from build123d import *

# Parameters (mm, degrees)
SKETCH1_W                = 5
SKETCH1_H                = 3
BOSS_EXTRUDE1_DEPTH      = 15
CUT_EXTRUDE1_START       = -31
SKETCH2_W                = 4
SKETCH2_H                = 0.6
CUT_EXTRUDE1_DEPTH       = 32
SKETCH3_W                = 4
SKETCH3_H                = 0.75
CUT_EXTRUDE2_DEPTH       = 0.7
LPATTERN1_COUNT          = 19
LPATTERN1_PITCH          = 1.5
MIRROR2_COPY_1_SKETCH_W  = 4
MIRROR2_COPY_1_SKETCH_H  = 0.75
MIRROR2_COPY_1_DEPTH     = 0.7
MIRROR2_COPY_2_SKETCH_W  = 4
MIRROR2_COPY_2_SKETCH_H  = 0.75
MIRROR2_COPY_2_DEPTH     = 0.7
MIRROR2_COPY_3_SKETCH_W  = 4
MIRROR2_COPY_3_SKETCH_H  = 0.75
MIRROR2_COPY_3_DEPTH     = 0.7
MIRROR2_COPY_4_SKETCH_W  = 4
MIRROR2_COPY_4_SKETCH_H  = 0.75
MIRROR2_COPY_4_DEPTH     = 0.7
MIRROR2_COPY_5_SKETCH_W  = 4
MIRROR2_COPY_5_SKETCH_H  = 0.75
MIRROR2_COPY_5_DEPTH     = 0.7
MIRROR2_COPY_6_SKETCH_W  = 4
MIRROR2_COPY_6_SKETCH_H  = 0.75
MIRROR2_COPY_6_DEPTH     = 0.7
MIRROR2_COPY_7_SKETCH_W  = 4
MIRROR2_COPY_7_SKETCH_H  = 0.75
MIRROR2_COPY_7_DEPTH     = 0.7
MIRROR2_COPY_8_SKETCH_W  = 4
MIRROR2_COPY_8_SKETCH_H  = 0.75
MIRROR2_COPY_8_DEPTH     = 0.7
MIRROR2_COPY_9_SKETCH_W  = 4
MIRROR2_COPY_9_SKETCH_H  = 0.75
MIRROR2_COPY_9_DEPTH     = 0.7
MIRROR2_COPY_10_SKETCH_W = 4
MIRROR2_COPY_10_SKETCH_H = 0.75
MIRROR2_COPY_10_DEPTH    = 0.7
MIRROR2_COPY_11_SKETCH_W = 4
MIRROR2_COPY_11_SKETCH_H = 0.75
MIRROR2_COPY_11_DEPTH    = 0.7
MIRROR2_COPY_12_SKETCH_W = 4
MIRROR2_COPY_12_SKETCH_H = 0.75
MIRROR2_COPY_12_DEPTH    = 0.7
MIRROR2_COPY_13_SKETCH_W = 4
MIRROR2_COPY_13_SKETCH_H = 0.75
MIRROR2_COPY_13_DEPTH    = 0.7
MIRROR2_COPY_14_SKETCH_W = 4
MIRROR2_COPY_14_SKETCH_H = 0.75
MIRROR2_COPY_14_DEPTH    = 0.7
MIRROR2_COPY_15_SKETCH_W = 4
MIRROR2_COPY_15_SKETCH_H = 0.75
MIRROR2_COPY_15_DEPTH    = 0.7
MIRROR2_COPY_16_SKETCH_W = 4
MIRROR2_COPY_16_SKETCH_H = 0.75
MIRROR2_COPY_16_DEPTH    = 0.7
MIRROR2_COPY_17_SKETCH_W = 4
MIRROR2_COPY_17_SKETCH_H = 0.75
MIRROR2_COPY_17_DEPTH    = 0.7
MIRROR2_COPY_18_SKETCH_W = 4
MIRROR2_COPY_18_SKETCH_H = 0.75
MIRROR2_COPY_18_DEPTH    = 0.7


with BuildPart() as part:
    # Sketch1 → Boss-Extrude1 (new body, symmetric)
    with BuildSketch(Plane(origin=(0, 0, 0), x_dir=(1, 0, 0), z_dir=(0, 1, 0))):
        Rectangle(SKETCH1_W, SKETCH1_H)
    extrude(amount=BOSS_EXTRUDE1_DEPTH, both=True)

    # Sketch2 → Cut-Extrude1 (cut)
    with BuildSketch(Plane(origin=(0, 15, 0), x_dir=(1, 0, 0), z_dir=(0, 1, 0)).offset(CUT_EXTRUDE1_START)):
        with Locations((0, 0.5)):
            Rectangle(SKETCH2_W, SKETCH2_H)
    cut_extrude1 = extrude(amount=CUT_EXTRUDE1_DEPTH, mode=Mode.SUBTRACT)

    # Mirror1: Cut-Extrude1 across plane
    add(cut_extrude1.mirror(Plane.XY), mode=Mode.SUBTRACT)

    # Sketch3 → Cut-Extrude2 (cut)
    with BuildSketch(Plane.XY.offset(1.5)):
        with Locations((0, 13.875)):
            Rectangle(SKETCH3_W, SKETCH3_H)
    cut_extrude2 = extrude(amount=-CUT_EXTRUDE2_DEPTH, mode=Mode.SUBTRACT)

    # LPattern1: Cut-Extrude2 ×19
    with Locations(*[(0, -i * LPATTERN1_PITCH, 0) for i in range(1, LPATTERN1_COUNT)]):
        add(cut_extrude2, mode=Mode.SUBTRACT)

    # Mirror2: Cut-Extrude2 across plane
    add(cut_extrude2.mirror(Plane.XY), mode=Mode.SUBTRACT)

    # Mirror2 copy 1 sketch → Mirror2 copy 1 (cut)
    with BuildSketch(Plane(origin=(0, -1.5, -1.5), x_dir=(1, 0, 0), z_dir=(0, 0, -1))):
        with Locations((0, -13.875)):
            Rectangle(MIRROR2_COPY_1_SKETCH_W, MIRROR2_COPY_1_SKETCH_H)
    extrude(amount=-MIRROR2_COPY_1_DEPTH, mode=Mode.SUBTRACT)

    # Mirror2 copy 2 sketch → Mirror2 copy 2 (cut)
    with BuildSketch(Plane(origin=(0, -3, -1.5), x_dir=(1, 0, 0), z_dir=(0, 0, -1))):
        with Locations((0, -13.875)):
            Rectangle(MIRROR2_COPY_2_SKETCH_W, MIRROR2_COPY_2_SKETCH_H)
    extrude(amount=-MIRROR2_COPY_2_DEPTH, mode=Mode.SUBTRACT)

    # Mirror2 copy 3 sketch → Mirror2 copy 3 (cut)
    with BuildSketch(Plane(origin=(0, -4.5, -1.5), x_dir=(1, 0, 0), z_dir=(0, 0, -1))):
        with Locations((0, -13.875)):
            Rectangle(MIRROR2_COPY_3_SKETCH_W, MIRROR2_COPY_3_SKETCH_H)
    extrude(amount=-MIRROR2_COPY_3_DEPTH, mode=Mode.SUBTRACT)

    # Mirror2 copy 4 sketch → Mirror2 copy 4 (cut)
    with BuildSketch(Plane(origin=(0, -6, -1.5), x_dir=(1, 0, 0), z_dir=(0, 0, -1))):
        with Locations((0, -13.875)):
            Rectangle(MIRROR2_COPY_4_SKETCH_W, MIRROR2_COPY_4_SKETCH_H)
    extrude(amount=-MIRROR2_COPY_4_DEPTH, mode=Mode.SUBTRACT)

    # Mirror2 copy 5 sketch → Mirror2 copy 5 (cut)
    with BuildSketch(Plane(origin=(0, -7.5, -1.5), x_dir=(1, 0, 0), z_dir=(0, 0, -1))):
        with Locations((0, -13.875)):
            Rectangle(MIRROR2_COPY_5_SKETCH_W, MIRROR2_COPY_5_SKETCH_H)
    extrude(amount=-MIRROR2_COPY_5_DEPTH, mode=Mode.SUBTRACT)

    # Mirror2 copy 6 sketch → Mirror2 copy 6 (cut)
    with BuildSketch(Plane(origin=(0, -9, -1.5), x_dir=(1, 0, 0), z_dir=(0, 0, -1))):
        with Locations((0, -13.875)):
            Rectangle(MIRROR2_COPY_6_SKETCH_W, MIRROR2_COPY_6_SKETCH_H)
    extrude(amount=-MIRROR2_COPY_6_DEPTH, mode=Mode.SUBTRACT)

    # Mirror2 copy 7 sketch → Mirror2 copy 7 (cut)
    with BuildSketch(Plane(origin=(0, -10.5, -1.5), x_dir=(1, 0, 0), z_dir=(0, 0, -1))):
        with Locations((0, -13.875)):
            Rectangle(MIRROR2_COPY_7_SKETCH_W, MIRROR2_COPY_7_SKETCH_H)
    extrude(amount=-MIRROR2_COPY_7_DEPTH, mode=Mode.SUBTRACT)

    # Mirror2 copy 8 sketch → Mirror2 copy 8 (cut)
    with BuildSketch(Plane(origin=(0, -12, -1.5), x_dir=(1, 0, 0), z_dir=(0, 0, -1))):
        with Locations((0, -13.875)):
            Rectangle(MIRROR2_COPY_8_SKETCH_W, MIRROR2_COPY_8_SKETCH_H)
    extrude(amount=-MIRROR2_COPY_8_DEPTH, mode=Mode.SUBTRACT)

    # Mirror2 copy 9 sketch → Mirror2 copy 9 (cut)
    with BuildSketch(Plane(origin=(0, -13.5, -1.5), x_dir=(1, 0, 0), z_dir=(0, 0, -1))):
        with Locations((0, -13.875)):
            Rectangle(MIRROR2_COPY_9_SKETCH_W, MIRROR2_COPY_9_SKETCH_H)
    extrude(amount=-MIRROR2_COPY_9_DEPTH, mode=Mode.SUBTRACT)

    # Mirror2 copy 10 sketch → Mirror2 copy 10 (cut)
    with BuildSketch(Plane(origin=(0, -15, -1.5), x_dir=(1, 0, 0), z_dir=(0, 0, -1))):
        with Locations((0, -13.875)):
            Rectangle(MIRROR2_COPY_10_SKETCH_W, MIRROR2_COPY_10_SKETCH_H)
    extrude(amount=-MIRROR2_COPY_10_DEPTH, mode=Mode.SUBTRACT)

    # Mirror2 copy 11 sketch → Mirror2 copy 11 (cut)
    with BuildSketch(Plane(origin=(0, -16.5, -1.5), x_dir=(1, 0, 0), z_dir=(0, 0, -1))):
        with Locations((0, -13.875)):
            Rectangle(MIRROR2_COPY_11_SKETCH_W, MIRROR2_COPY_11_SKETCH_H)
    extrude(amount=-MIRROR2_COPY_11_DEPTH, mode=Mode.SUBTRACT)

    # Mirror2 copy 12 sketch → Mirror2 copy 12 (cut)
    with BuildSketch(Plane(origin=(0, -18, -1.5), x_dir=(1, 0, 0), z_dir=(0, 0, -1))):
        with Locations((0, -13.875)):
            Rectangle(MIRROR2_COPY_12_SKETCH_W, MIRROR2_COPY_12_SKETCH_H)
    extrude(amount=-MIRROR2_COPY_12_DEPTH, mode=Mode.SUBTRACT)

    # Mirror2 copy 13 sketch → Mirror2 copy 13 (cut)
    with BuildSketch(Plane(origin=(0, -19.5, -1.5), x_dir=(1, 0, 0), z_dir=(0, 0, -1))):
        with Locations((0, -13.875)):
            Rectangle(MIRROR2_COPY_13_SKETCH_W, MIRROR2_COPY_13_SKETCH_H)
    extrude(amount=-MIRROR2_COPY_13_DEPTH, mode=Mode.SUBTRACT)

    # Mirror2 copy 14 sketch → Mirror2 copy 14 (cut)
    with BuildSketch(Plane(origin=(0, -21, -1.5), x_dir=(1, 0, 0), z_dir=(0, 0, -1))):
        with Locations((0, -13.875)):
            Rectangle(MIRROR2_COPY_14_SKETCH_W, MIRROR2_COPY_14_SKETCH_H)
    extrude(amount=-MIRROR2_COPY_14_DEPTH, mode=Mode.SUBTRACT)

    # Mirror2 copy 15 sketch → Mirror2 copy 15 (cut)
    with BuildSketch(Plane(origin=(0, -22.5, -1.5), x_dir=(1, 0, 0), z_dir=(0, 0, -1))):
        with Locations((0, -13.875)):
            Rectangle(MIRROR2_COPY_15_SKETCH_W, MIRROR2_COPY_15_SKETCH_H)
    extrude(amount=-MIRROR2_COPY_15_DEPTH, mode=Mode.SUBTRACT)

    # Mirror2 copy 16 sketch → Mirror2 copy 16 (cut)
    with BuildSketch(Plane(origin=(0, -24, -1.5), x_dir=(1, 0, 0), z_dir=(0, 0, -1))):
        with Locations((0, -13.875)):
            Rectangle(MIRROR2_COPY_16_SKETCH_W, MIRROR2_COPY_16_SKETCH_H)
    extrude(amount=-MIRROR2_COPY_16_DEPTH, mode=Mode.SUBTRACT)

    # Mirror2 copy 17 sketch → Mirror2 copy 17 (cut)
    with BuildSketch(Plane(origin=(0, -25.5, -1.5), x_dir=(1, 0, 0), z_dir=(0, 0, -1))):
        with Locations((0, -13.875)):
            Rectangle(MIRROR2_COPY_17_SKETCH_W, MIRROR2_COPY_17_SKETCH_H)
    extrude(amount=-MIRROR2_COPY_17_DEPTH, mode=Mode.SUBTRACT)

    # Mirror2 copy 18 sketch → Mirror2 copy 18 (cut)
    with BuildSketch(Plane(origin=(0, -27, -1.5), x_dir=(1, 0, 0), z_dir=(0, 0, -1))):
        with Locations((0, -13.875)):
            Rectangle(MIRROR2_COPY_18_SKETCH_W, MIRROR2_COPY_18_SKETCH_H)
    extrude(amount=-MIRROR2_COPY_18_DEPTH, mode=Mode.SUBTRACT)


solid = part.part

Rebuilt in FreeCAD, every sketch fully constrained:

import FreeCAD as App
import Part
import Sketcher

doc = App.newDocument("Part")
body = doc.addObject("PartDesign::Body", "Body")

sketch1 = body.newObject("Sketcher::SketchObject", "Sketch")
sketch1.AttachmentSupport = (doc.getObject("XZ_Plane"), [""])
sketch1.MapMode = "FlatFace"
sketch1.addGeometry([
    Part.LineSegment(App.Vector(-2.5, -1.5, 0), App.Vector(-2.5, 1.5, 0)),
    Part.LineSegment(App.Vector(-2.5, 1.5, 0), App.Vector(2.5, 1.5, 0)),
    Part.LineSegment(App.Vector(2.5, 1.5, 0), App.Vector(2.5, -1.5, 0)),
    Part.LineSegment(App.Vector(2.5, -1.5, 0), App.Vector(-2.5, -1.5, 0)),
], False)
sketch1.addConstraint([
    Sketcher.Constraint("Coincident", 0, 2, 1, 1),
    Sketcher.Constraint("Coincident", 1, 2, 2, 1),
    Sketcher.Constraint("Coincident", 2, 2, 3, 1),
    Sketcher.Constraint("Coincident", 3, 2, 0, 1),
    Sketcher.Constraint("Vertical", 0),
    Sketcher.Constraint("Horizontal", 1),
    Sketcher.Constraint("Vertical", 2),
    Sketcher.Constraint("Horizontal", 3),
    Sketcher.Constraint("Symmetric", 0, 2, 2, 2, -1, 1),
    Sketcher.Constraint("DistanceX", 1, 1, 1, 2, 5.0),
    Sketcher.Constraint("DistanceY", 0, 1, 0, 2, 3.0),
])
pad1 = body.newObject("PartDesign::Pad", "Pad")
pad1.Profile = sketch1
pad1.Length = 30
pad1.Midplane = True

sketch2 = body.newObject("Sketcher::SketchObject", "Sketch001")
sketch2.AttachmentSupport = (doc.getObject("XZ_Plane"), [""])
sketch2.MapMode = "FlatFace"
sketch2.AttachmentOffset = App.Placement(App.Vector(0, 0, 16), App.Rotation())
sketch2.addGeometry([
    Part.LineSegment(App.Vector(-2, -0.8, 0), App.Vector(-2, -0.2, 0)),
    Part.LineSegment(App.Vector(-2, -0.2, 0), App.Vector(2, -0.2, 0)),
    Part.LineSegment(App.Vector(2, -0.2, 0), App.Vector(2, -0.8, 0)),
    Part.LineSegment(App.Vector(2, -0.8, 0), App.Vector(-2, -0.8, 0)),
], False)
sketch2.addConstraint([
    Sketcher.Constraint("Coincident", 0, 2, 1, 1),
    Sketcher.Constraint("Coincident", 1, 2, 2, 1),
    Sketcher.Constraint("Coincident", 2, 2, 3, 1),
    Sketcher.Constraint("Coincident", 3, 2, 0, 1),
    Sketcher.Constraint("Vertical", 0),
    Sketcher.Constraint("Horizontal", 1),
    Sketcher.Constraint("Vertical", 2),
    Sketcher.Constraint("Horizontal", 3),
    Sketcher.Constraint("DistanceX", 1, 1, 1, 2, 4.0),
    Sketcher.Constraint("DistanceY", 0, 1, 0, 2, 0.6),
    Sketcher.Constraint("DistanceX", 0, 2, -1, 1, 2.0),
    Sketcher.Constraint("DistanceY", 0, 2, -1, 1, 0.2),
])
pocket1 = body.newObject("PartDesign::Pocket", "Pocket")
pocket1.Profile = sketch2
pocket1.Length = 32
doc.recompute()

mirrored = body.newObject("PartDesign::Mirrored", "Mirrored")
mirrored.Originals = [pocket1]
mirrored.MirrorPlane = (doc.getObject("XY_Plane"), [""])
body.Tip = mirrored

sketch3 = body.newObject("Sketcher::SketchObject", "Sketch002")
sketch3.AttachmentSupport = (doc.getObject("XY_Plane"), [""])
sketch3.MapMode = "FlatFace"
sketch3.AttachmentOffset = App.Placement(App.Vector(0, 0, 1.5), App.Rotation())
sketch3.addGeometry([
    Part.LineSegment(App.Vector(-2, 14.2, 0), App.Vector(-2, 13.5, 0)),
    Part.LineSegment(App.Vector(-2, 13.5, 0), App.Vector(2, 13.5, 0)),
    Part.LineSegment(App.Vector(2, 13.5, 0), App.Vector(2, 14.2, 0)),
    Part.LineSegment(App.Vector(2, 14.2, 0), App.Vector(-2, 14.2, 0)),
], False)
sketch3.addConstraint([
    Sketcher.Constraint("Coincident", 0, 2, 1, 1),
    Sketcher.Constraint("Coincident", 1, 2, 2, 1),
    Sketcher.Constraint("Coincident", 2, 2, 3, 1),
    Sketcher.Constraint("Coincident", 3, 2, 0, 1),
    Sketcher.Constraint("Vertical", 0),
    Sketcher.Constraint("Horizontal", 1),
    Sketcher.Constraint("Vertical", 2),
    Sketcher.Constraint("Horizontal", 3),
    Sketcher.Constraint("DistanceX", 1, 1, 1, 2, 4.0),
    Sketcher.Constraint("DistanceX", 0, 2, -1, 1, 2.0),
    Sketcher.Constraint("DistanceY", 0, 2, 0, 1, 0.75),
    Sketcher.Constraint("DistanceY", -1, 1, 0, 2, 13.5),
])
pocket2 = body.newObject("PartDesign::Pocket", "Pocket001")
pocket2.Profile = sketch3
pocket2.Length = 0.7
doc.recompute()

linearpattern = body.newObject("PartDesign::LinearPattern", "LinearPattern")
linearpattern.Originals = [pocket2]
linearpattern.Direction = (doc.getObject("Y_Axis"), [""])
linearpattern.Mode = "offset"
linearpattern.Offset = 1.5
linearpattern.Occurrences = 19
linearpattern.Reversed = True
body.Tip = linearpattern
doc.recompute()

mirrored2 = body.newObject("PartDesign::Mirrored", "Mirrored001")
mirrored2.Originals = [pocket2]
mirrored2.MirrorPlane = (doc.getObject("XY_Plane"), [""])
body.Tip = mirrored2

sketch4 = body.newObject("Sketcher::SketchObject", "Sketch003")
sketch4.AttachmentSupport = (doc.getObject("XY_Plane"), [""])
sketch4.MapMode = "FlatFace"
sketch4.AttachmentOffset = App.Placement(App.Vector(0, 0, -1.5), App.Rotation())
sketch4.addGeometry([
    Part.LineSegment(App.Vector(-2, 12, 0), App.Vector(-2, 12.8, 0)),
    Part.LineSegment(App.Vector(-2, 12.8, 0), App.Vector(2, 12.8, 0)),
    Part.LineSegment(App.Vector(2, 12.8, 0), App.Vector(2, 12, 0)),
    Part.LineSegment(App.Vector(2, 12, 0), App.Vector(-2, 12, 0)),
], False)
sketch4.addConstraint([
    Sketcher.Constraint("Coincident", 0, 2, 1, 1),
    Sketcher.Constraint("Coincident", 1, 2, 2, 1),
    Sketcher.Constraint("Coincident", 2, 2, 3, 1),
    Sketcher.Constraint("Coincident", 3, 2, 0, 1),
    Sketcher.Constraint("Vertical", 0),
    Sketcher.Constraint("Horizontal", 1),
    Sketcher.Constraint("Vertical", 2),
    Sketcher.Constraint("Horizontal", 3),
    Sketcher.Constraint("DistanceX", 1, 1, 1, 2, 4.0),
    Sketcher.Constraint("DistanceX", 0, 2, -1, 1, 2.0),
    Sketcher.Constraint("DistanceY", -1, 1, 2, 2, 12.0),
    Sketcher.Constraint("DistanceY", 0, 1, 0, 2, 0.75),
])
pocket3 = body.newObject("PartDesign::Pocket", "Pocket002")
pocket3.Profile = sketch4
pocket3.Length = 0.7
pocket3.Reversed = True

sketch5 = body.newObject("Sketcher::SketchObject", "Sketch004")
sketch5.AttachmentSupport = (doc.getObject("XY_Plane"), [""])
sketch5.MapMode = "FlatFace"
sketch5.AttachmentOffset = App.Placement(App.Vector(0, 0, -1.5), App.Rotation())
sketch5.addGeometry([
    Part.LineSegment(App.Vector(-2, 10.5, 0), App.Vector(-2, 11.2, 0)),
    Part.LineSegment(App.Vector(-2, 11.2, 0), App.Vector(2, 11.2, 0)),
    Part.LineSegment(App.Vector(2, 11.2, 0), App.Vector(2, 10.5, 0)),
    Part.LineSegment(App.Vector(2, 10.5, 0), App.Vector(-2, 10.5, 0)),
], False)
sketch5.addConstraint([
    Sketcher.Constraint("Coincident", 0, 2, 1, 1),
    Sketcher.Constraint("Coincident", 1, 2, 2, 1),
    Sketcher.Constraint("Coincident", 2, 2, 3, 1),
    Sketcher.Constraint("Coincident", 3, 2, 0, 1),
    Sketcher.Constraint("Vertical", 0),
    Sketcher.Constraint("Horizontal", 1),
    Sketcher.Constraint("Vertical", 2),
    Sketcher.Constraint("Horizontal", 3),
    Sketcher.Constraint("DistanceX", 1, 1, 1, 2, 4.0),
    Sketcher.Constraint("DistanceX", 0, 2, -1, 1, 2.0),
    Sketcher.Constraint("DistanceY", 0, 1, 0, 2, 0.75),
    Sketcher.Constraint("DistanceY", -1, 1, 2, 2, 10.5),
])
pocket4 = body.newObject("PartDesign::Pocket", "Pocket003")
pocket4.Profile = sketch5
pocket4.Length = 0.7
pocket4.Reversed = True

sketch6 = body.newObject("Sketcher::SketchObject", "Sketch005")
sketch6.AttachmentSupport = (doc.getObject("XY_Plane"), [""])
sketch6.MapMode = "FlatFace"
sketch6.AttachmentOffset = App.Placement(App.Vector(0, 0, -1.5), App.Rotation())
sketch6.addGeometry([
    Part.LineSegment(App.Vector(-2, 9, 0), App.Vector(-2, 9.8, 0)),
    Part.LineSegment(App.Vector(-2, 9.8, 0), App.Vector(2, 9.8, 0)),
    Part.LineSegment(App.Vector(2, 9.8, 0), App.Vector(2, 9, 0)),
    Part.LineSegment(App.Vector(2, 9, 0), App.Vector(-2, 9, 0)),
], False)
sketch6.addConstraint([
    Sketcher.Constraint("Coincident", 0, 2, 1, 1),
    Sketcher.Constraint("Coincident", 1, 2, 2, 1),
    Sketcher.Constraint("Coincident", 2, 2, 3, 1),
    Sketcher.Constraint("Coincident", 3, 2, 0, 1),
    Sketcher.Constraint("Vertical", 0),
    Sketcher.Constraint("Horizontal", 1),
    Sketcher.Constraint("Vertical", 2),
    Sketcher.Constraint("Horizontal", 3),
    Sketcher.Constraint("DistanceX", 1, 1, 1, 2, 4.0),
    Sketcher.Constraint("DistanceX", 0, 2, -1, 1, 2.0),
    Sketcher.Constraint("DistanceY", -1, 1, 2, 2, 9.0),
    Sketcher.Constraint("DistanceY", 0, 1, 0, 2, 0.75),
])
pocket5 = body.newObject("PartDesign::Pocket", "Pocket004")
pocket5.Profile = sketch6
pocket5.Length = 0.7
pocket5.Reversed = True

sketch7 = body.newObject("Sketcher::SketchObject", "Sketch006")
sketch7.AttachmentSupport = (doc.getObject("XY_Plane"), [""])
sketch7.MapMode = "FlatFace"
sketch7.AttachmentOffset = App.Placement(App.Vector(0, 0, -1.5), App.Rotation())
sketch7.addGeometry([
    Part.LineSegment(App.Vector(-2, 7.5, 0), App.Vector(-2, 8.2, 0)),
    Part.LineSegment(App.Vector(-2, 8.2, 0), App.Vector(2, 8.2, 0)),
    Part.LineSegment(App.Vector(2, 8.2, 0), App.Vector(2, 7.5, 0)),
    Part.LineSegment(App.Vector(2, 7.5, 0), App.Vector(-2, 7.5, 0)),
], False)
sketch7.addConstraint([
    Sketcher.Constraint("Coincident", 0, 2, 1, 1),
    Sketcher.Constraint("Coincident", 1, 2, 2, 1),
    Sketcher.Constraint("Coincident", 2, 2, 3, 1),
    Sketcher.Constraint("Coincident", 3, 2, 0, 1),
    Sketcher.Constraint("Vertical", 0),
    Sketcher.Constraint("Horizontal", 1),
    Sketcher.Constraint("Vertical", 2),
    Sketcher.Constraint("Horizontal", 3),
    Sketcher.Constraint("DistanceX", 1, 1, 1, 2, 4.0),
    Sketcher.Constraint("DistanceX", 0, 2, -1, 1, 2.0),
    Sketcher.Constraint("DistanceY", 0, 1, 0, 2, 0.75),
    Sketcher.Constraint("DistanceY", -1, 1, 2, 2, 7.5),
])
pocket6 = body.newObject("PartDesign::Pocket", "Pocket005")
pocket6.Profile = sketch7
pocket6.Length = 0.7
pocket6.Reversed = True

sketch8 = body.newObject("Sketcher::SketchObject", "Sketch007")
sketch8.AttachmentSupport = (doc.getObject("XY_Plane"), [""])
sketch8.MapMode = "FlatFace"
sketch8.AttachmentOffset = App.Placement(App.Vector(0, 0, -1.5), App.Rotation())
sketch8.addGeometry([
    Part.LineSegment(App.Vector(-2, 6, 0), App.Vector(-2, 6.8, 0)),
    Part.LineSegment(App.Vector(-2, 6.8, 0), App.Vector(2, 6.8, 0)),
    Part.LineSegment(App.Vector(2, 6.8, 0), App.Vector(2, 6, 0)),
    Part.LineSegment(App.Vector(2, 6, 0), App.Vector(-2, 6, 0)),
], False)
sketch8.addConstraint([
    Sketcher.Constraint("Coincident", 0, 2, 1, 1),
    Sketcher.Constraint("Coincident", 1, 2, 2, 1),
    Sketcher.Constraint("Coincident", 2, 2, 3, 1),
    Sketcher.Constraint("Coincident", 3, 2, 0, 1),
    Sketcher.Constraint("Vertical", 0),
    Sketcher.Constraint("Horizontal", 1),
    Sketcher.Constraint("Vertical", 2),
    Sketcher.Constraint("Horizontal", 3),
    Sketcher.Constraint("DistanceX", 1, 1, 1, 2, 4.0),
    Sketcher.Constraint("DistanceX", 0, 2, -1, 1, 2.0),
    Sketcher.Constraint("DistanceY", -1, 1, 2, 2, 6.0),
    Sketcher.Constraint("DistanceY", 0, 1, 0, 2, 0.75),
])
pocket7 = body.newObject("PartDesign::Pocket", "Pocket006")
pocket7.Profile = sketch8
pocket7.Length = 0.7
pocket7.Reversed = True

sketch9 = body.newObject("Sketcher::SketchObject", "Sketch008")
sketch9.AttachmentSupport = (doc.getObject("XY_Plane"), [""])
sketch9.MapMode = "FlatFace"
sketch9.AttachmentOffset = App.Placement(App.Vector(0, 0, -1.5), App.Rotation())
sketch9.addGeometry([
    Part.LineSegment(App.Vector(-2, 4.5, 0), App.Vector(-2, 5.2, 0)),
    Part.LineSegment(App.Vector(-2, 5.2, 0), App.Vector(2, 5.2, 0)),
    Part.LineSegment(App.Vector(2, 5.2, 0), App.Vector(2, 4.5, 0)),
    Part.LineSegment(App.Vector(2, 4.5, 0), App.Vector(-2, 4.5, 0)),
], False)
sketch9.addConstraint([
    Sketcher.Constraint("Coincident", 0, 2, 1, 1),
    Sketcher.Constraint("Coincident", 1, 2, 2, 1),
    Sketcher.Constraint("Coincident", 2, 2, 3, 1),
    Sketcher.Constraint("Coincident", 3, 2, 0, 1),
    Sketcher.Constraint("Vertical", 0),
    Sketcher.Constraint("Horizontal", 1),
    Sketcher.Constraint("Vertical", 2),
    Sketcher.Constraint("Horizontal", 3),
    Sketcher.Constraint("DistanceX", 1, 1, 1, 2, 4.0),
    Sketcher.Constraint("DistanceX", 0, 2, -1, 1, 2.0),
    Sketcher.Constraint("DistanceY", 0, 1, 0, 2, 0.75),
    Sketcher.Constraint("DistanceY", -1, 1, 2, 2, 4.5),
])
pocket8 = body.newObject("PartDesign::Pocket", "Pocket007")
pocket8.Profile = sketch9
pocket8.Length = 0.7
pocket8.Reversed = True

sketch10 = body.newObject("Sketcher::SketchObject", "Sketch009")
sketch10.AttachmentSupport = (doc.getObject("XY_Plane"), [""])
sketch10.MapMode = "FlatFace"
sketch10.AttachmentOffset = App.Placement(App.Vector(0, 0, -1.5), App.Rotation())
sketch10.addGeometry([
    Part.LineSegment(App.Vector(-2, 3, 0), App.Vector(-2, 3.8, 0)),
    Part.LineSegment(App.Vector(-2, 3.8, 0), App.Vector(2, 3.8, 0)),
    Part.LineSegment(App.Vector(2, 3.8, 0), App.Vector(2, 3, 0)),
    Part.LineSegment(App.Vector(2, 3, 0), App.Vector(-2, 3, 0)),
], False)
sketch10.addConstraint([
    Sketcher.Constraint("Coincident", 0, 2, 1, 1),
    Sketcher.Constraint("Coincident", 1, 2, 2, 1),
    Sketcher.Constraint("Coincident", 2, 2, 3, 1),
    Sketcher.Constraint("Coincident", 3, 2, 0, 1),
    Sketcher.Constraint("Vertical", 0),
    Sketcher.Constraint("Horizontal", 1),
    Sketcher.Constraint("Vertical", 2),
    Sketcher.Constraint("Horizontal", 3),
    Sketcher.Constraint("DistanceX", 1, 1, 1, 2, 4.0),
    Sketcher.Constraint("DistanceX", 0, 2, -1, 1, 2.0),
    Sketcher.Constraint("DistanceY", -1, 1, 2, 2, 3.0),
    Sketcher.Constraint("DistanceY", 0, 1, 0, 2, 0.75),
])
pocket9 = body.newObject("PartDesign::Pocket", "Pocket008")
pocket9.Profile = sketch10
pocket9.Length = 0.7
pocket9.Reversed = True

sketch11 = body.newObject("Sketcher::SketchObject", "Sketch010")
sketch11.AttachmentSupport = (doc.getObject("XY_Plane"), [""])
sketch11.MapMode = "FlatFace"
sketch11.AttachmentOffset = App.Placement(App.Vector(0, 0, -1.5), App.Rotation())
sketch11.addGeometry([
    Part.LineSegment(App.Vector(-2, 1.5, 0), App.Vector(-2, 2.2, 0)),
    Part.LineSegment(App.Vector(-2, 2.2, 0), App.Vector(2, 2.2, 0)),
    Part.LineSegment(App.Vector(2, 2.2, 0), App.Vector(2, 1.5, 0)),
    Part.LineSegment(App.Vector(2, 1.5, 0), App.Vector(-2, 1.5, 0)),
], False)
sketch11.addConstraint([
    Sketcher.Constraint("Coincident", 0, 2, 1, 1),
    Sketcher.Constraint("Coincident", 1, 2, 2, 1),
    Sketcher.Constraint("Coincident", 2, 2, 3, 1),
    Sketcher.Constraint("Coincident", 3, 2, 0, 1),
    Sketcher.Constraint("Vertical", 0),
    Sketcher.Constraint("Horizontal", 1),
    Sketcher.Constraint("Vertical", 2),
    Sketcher.Constraint("Horizontal", 3),
    Sketcher.Constraint("DistanceX", 1, 1, 1, 2, 4.0),
    Sketcher.Constraint("DistanceX", 0, 2, -1, 1, 2.0),
    Sketcher.Constraint("DistanceY", 0, 1, 0, 2, 0.75),
    Sketcher.Constraint("DistanceY", -1, 1, 2, 2, 1.5),
])
pocket10 = body.newObject("PartDesign::Pocket", "Pocket009")
pocket10.Profile = sketch11
pocket10.Length = 0.7
pocket10.Reversed = True

sketch12 = body.newObject("Sketcher::SketchObject", "Sketch011")
sketch12.AttachmentSupport = (doc.getObject("XY_Plane"), [""])
sketch12.MapMode = "FlatFace"
sketch12.AttachmentOffset = App.Placement(App.Vector(0, 0, -1.5), App.Rotation())
sketch12.addGeometry([
    Part.LineSegment(App.Vector(-2, 0, 0), App.Vector(-2, 0.8, 0)),
    Part.LineSegment(App.Vector(-2, 0.8, 0), App.Vector(2, 0.8, 0)),
    Part.LineSegment(App.Vector(2, 0.8, 0), App.Vector(2, 0, 0)),
    Part.LineSegment(App.Vector(2, 0, 0), App.Vector(-2, 0, 0)),
], False)
sketch12.addConstraint([
    Sketcher.Constraint("Coincident", 0, 2, 1, 1),
    Sketcher.Constraint("Coincident", 1, 2, 2, 1),
    Sketcher.Constraint("Coincident", 2, 2, 3, 1),
    Sketcher.Constraint("Coincident", 3, 2, 0, 1),
    Sketcher.Constraint("Vertical", 0),
    Sketcher.Constraint("Horizontal", 1),
    Sketcher.Constraint("Vertical", 2),
    Sketcher.Constraint("Horizontal", 3),
    Sketcher.Constraint("Symmetric", 2, 2, 3, 2, -1, 1),
    Sketcher.Constraint("DistanceX", 1, 1, 1, 2, 4.0),
    Sketcher.Constraint("DistanceY", 0, 1, 0, 2, 0.75),
])
pocket11 = body.newObject("PartDesign::Pocket", "Pocket010")
pocket11.Profile = sketch12
pocket11.Length = 0.7
pocket11.Reversed = True

sketch13 = body.newObject("Sketcher::SketchObject", "Sketch012")
sketch13.AttachmentSupport = (doc.getObject("XY_Plane"), [""])
sketch13.MapMode = "FlatFace"
sketch13.AttachmentOffset = App.Placement(App.Vector(0, 0, -1.5), App.Rotation())
sketch13.addGeometry([
    Part.LineSegment(App.Vector(-2, -1.5, 0), App.Vector(-2, -0.8, 0)),
    Part.LineSegment(App.Vector(-2, -0.8, 0), App.Vector(2, -0.8, 0)),
    Part.LineSegment(App.Vector(2, -0.8, 0), App.Vector(2, -1.5, 0)),
    Part.LineSegment(App.Vector(2, -1.5, 0), App.Vector(-2, -1.5, 0)),
], False)
sketch13.addConstraint([
    Sketcher.Constraint("Coincident", 0, 2, 1, 1),
    Sketcher.Constraint("Coincident", 1, 2, 2, 1),
    Sketcher.Constraint("Coincident", 2, 2, 3, 1),
    Sketcher.Constraint("Coincident", 3, 2, 0, 1),
    Sketcher.Constraint("Vertical", 0),
    Sketcher.Constraint("Horizontal", 1),
    Sketcher.Constraint("Vertical", 2),
    Sketcher.Constraint("Horizontal", 3),
    Sketcher.Constraint("DistanceX", 1, 1, 1, 2, 4.0),
    Sketcher.Constraint("DistanceX", 0, 2, -1, 1, 2.0),
    Sketcher.Constraint("DistanceY", 0, 1, 0, 2, 0.75),
    Sketcher.Constraint("DistanceY", 2, 2, -1, 1, 1.5),
])
pocket12 = body.newObject("PartDesign::Pocket", "Pocket011")
pocket12.Profile = sketch13
pocket12.Length = 0.7
pocket12.Reversed = True

sketch14 = body.newObject("Sketcher::SketchObject", "Sketch013")
sketch14.AttachmentSupport = (doc.getObject("XY_Plane"), [""])
sketch14.MapMode = "FlatFace"
sketch14.AttachmentOffset = App.Placement(App.Vector(0, 0, -1.5), App.Rotation())
sketch14.addGeometry([
    Part.LineSegment(App.Vector(-2, -3, 0), App.Vector(-2, -2.2, 0)),
    Part.LineSegment(App.Vector(-2, -2.2, 0), App.Vector(2, -2.2, 0)),
    Part.LineSegment(App.Vector(2, -2.2, 0), App.Vector(2, -3, 0)),
    Part.LineSegment(App.Vector(2, -3, 0), App.Vector(-2, -3, 0)),
], False)
sketch14.addConstraint([
    Sketcher.Constraint("Coincident", 0, 2, 1, 1),
    Sketcher.Constraint("Coincident", 1, 2, 2, 1),
    Sketcher.Constraint("Coincident", 2, 2, 3, 1),
    Sketcher.Constraint("Coincident", 3, 2, 0, 1),
    Sketcher.Constraint("Vertical", 0),
    Sketcher.Constraint("Horizontal", 1),
    Sketcher.Constraint("Vertical", 2),
    Sketcher.Constraint("Horizontal", 3),
    Sketcher.Constraint("DistanceX", 1, 1, 1, 2, 4.0),
    Sketcher.Constraint("DistanceX", 0, 2, -1, 1, 2.0),
    Sketcher.Constraint("DistanceY", 2, 2, -1, 1, 3.0),
    Sketcher.Constraint("DistanceY", 0, 1, 0, 2, 0.75),
])
pocket13 = body.newObject("PartDesign::Pocket", "Pocket012")
pocket13.Profile = sketch14
pocket13.Length = 0.7
pocket13.Reversed = True

sketch15 = body.newObject("Sketcher::SketchObject", "Sketch014")
sketch15.AttachmentSupport = (doc.getObject("XY_Plane"), [""])
sketch15.MapMode = "FlatFace"
sketch15.AttachmentOffset = App.Placement(App.Vector(0, 0, -1.5), App.Rotation())
sketch15.addGeometry([
    Part.LineSegment(App.Vector(-2, -4.5, 0), App.Vector(-2, -3.8, 0)),
    Part.LineSegment(App.Vector(-2, -3.8, 0), App.Vector(2, -3.8, 0)),
    Part.LineSegment(App.Vector(2, -3.8, 0), App.Vector(2, -4.5, 0)),
    Part.LineSegment(App.Vector(2, -4.5, 0), App.Vector(-2, -4.5, 0)),
], False)
sketch15.addConstraint([
    Sketcher.Constraint("Coincident", 0, 2, 1, 1),
    Sketcher.Constraint("Coincident", 1, 2, 2, 1),
    Sketcher.Constraint("Coincident", 2, 2, 3, 1),
    Sketcher.Constraint("Coincident", 3, 2, 0, 1),
    Sketcher.Constraint("Vertical", 0),
    Sketcher.Constraint("Horizontal", 1),
    Sketcher.Constraint("Vertical", 2),
    Sketcher.Constraint("Horizontal", 3),
    Sketcher.Constraint("DistanceX", 1, 1, 1, 2, 4.0),
    Sketcher.Constraint("DistanceX", 0, 2, -1, 1, 2.0),
    Sketcher.Constraint("DistanceY", 0, 1, 0, 2, 0.75),
    Sketcher.Constraint("DistanceY", 2, 2, -1, 1, 4.5),
])
pocket14 = body.newObject("PartDesign::Pocket", "Pocket013")
pocket14.Profile = sketch15
pocket14.Length = 0.7
pocket14.Reversed = True

sketch16 = body.newObject("Sketcher::SketchObject", "Sketch015")
sketch16.AttachmentSupport = (doc.getObject("XY_Plane"), [""])
sketch16.MapMode = "FlatFace"
sketch16.AttachmentOffset = App.Placement(App.Vector(0, 0, -1.5), App.Rotation())
sketch16.addGeometry([
    Part.LineSegment(App.Vector(-2, -6, 0), App.Vector(-2, -5.2, 0)),
    Part.LineSegment(App.Vector(-2, -5.2, 0), App.Vector(2, -5.2, 0)),
    Part.LineSegment(App.Vector(2, -5.2, 0), App.Vector(2, -6, 0)),
    Part.LineSegment(App.Vector(2, -6, 0), App.Vector(-2, -6, 0)),
], False)
sketch16.addConstraint([
    Sketcher.Constraint("Coincident", 0, 2, 1, 1),
    Sketcher.Constraint("Coincident", 1, 2, 2, 1),
    Sketcher.Constraint("Coincident", 2, 2, 3, 1),
    Sketcher.Constraint("Coincident", 3, 2, 0, 1),
    Sketcher.Constraint("Vertical", 0),
    Sketcher.Constraint("Horizontal", 1),
    Sketcher.Constraint("Vertical", 2),
    Sketcher.Constraint("Horizontal", 3),
    Sketcher.Constraint("DistanceX", 1, 1, 1, 2, 4.0),
    Sketcher.Constraint("DistanceX", 0, 2, -1, 1, 2.0),
    Sketcher.Constraint("DistanceY", 2, 2, -1, 1, 6.0),
    Sketcher.Constraint("DistanceY", 0, 1, 0, 2, 0.75),
])
pocket15 = body.newObject("PartDesign::Pocket", "Pocket014")
pocket15.Profile = sketch16
pocket15.Length = 0.7
pocket15.Reversed = True

sketch17 = body.newObject("Sketcher::SketchObject", "Sketch016")
sketch17.AttachmentSupport = (doc.getObject("XY_Plane"), [""])
sketch17.MapMode = "FlatFace"
sketch17.AttachmentOffset = App.Placement(App.Vector(0, 0, -1.5), App.Rotation())
sketch17.addGeometry([
    Part.LineSegment(App.Vector(-2, -7.5, 0), App.Vector(-2, -6.8, 0)),
    Part.LineSegment(App.Vector(-2, -6.8, 0), App.Vector(2, -6.8, 0)),
    Part.LineSegment(App.Vector(2, -6.8, 0), App.Vector(2, -7.5, 0)),
    Part.LineSegment(App.Vector(2, -7.5, 0), App.Vector(-2, -7.5, 0)),
], False)
sketch17.addConstraint([
    Sketcher.Constraint("Coincident", 0, 2, 1, 1),
    Sketcher.Constraint("Coincident", 1, 2, 2, 1),
    Sketcher.Constraint("Coincident", 2, 2, 3, 1),
    Sketcher.Constraint("Coincident", 3, 2, 0, 1),
    Sketcher.Constraint("Vertical", 0),
    Sketcher.Constraint("Horizontal", 1),
    Sketcher.Constraint("Vertical", 2),
    Sketcher.Constraint("Horizontal", 3),
    Sketcher.Constraint("DistanceX", 1, 1, 1, 2, 4.0),
    Sketcher.Constraint("DistanceX", 0, 2, -1, 1, 2.0),
    Sketcher.Constraint("DistanceY", 0, 1, 0, 2, 0.75),
    Sketcher.Constraint("DistanceY", 2, 2, -1, 1, 7.5),
])
pocket16 = body.newObject("PartDesign::Pocket", "Pocket015")
pocket16.Profile = sketch17
pocket16.Length = 0.7
pocket16.Reversed = True

sketch18 = body.newObject("Sketcher::SketchObject", "Sketch017")
sketch18.AttachmentSupport = (doc.getObject("XY_Plane"), [""])
sketch18.MapMode = "FlatFace"
sketch18.AttachmentOffset = App.Placement(App.Vector(0, 0, -1.5), App.Rotation())
sketch18.addGeometry([
    Part.LineSegment(App.Vector(-2, -9, 0), App.Vector(-2, -8.2, 0)),
    Part.LineSegment(App.Vector(-2, -8.2, 0), App.Vector(2, -8.2, 0)),
    Part.LineSegment(App.Vector(2, -8.2, 0), App.Vector(2, -9, 0)),
    Part.LineSegment(App.Vector(2, -9, 0), App.Vector(-2, -9, 0)),
], False)
sketch18.addConstraint([
    Sketcher.Constraint("Coincident", 0, 2, 1, 1),
    Sketcher.Constraint("Coincident", 1, 2, 2, 1),
    Sketcher.Constraint("Coincident", 2, 2, 3, 1),
    Sketcher.Constraint("Coincident", 3, 2, 0, 1),
    Sketcher.Constraint("Vertical", 0),
    Sketcher.Constraint("Horizontal", 1),
    Sketcher.Constraint("Vertical", 2),
    Sketcher.Constraint("Horizontal", 3),
    Sketcher.Constraint("DistanceX", 1, 1, 1, 2, 4.0),
    Sketcher.Constraint("DistanceX", 0, 2, -1, 1, 2.0),
    Sketcher.Constraint("DistanceY", 2, 2, -1, 1, 9.0),
    Sketcher.Constraint("DistanceY", 0, 1, 0, 2, 0.75),
])
pocket17 = body.newObject("PartDesign::Pocket", "Pocket016")
pocket17.Profile = sketch18
pocket17.Length = 0.7
pocket17.Reversed = True

sketch19 = body.newObject("Sketcher::SketchObject", "Sketch018")
sketch19.AttachmentSupport = (doc.getObject("XY_Plane"), [""])
sketch19.MapMode = "FlatFace"
sketch19.AttachmentOffset = App.Placement(App.Vector(0, 0, -1.5), App.Rotation())
sketch19.addGeometry([
    Part.LineSegment(App.Vector(-2, -10.5, 0), App.Vector(-2, -9.8, 0)),
    Part.LineSegment(App.Vector(-2, -9.8, 0), App.Vector(2, -9.8, 0)),
    Part.LineSegment(App.Vector(2, -9.8, 0), App.Vector(2, -10.5, 0)),
    Part.LineSegment(App.Vector(2, -10.5, 0), App.Vector(-2, -10.5, 0)),
], False)
sketch19.addConstraint([
    Sketcher.Constraint("Coincident", 0, 2, 1, 1),
    Sketcher.Constraint("Coincident", 1, 2, 2, 1),
    Sketcher.Constraint("Coincident", 2, 2, 3, 1),
    Sketcher.Constraint("Coincident", 3, 2, 0, 1),
    Sketcher.Constraint("Vertical", 0),
    Sketcher.Constraint("Horizontal", 1),
    Sketcher.Constraint("Vertical", 2),
    Sketcher.Constraint("Horizontal", 3),
    Sketcher.Constraint("DistanceX", 1, 1, 1, 2, 4.0),
    Sketcher.Constraint("DistanceX", 0, 2, -1, 1, 2.0),
    Sketcher.Constraint("DistanceY", 0, 1, 0, 2, 0.75),
    Sketcher.Constraint("DistanceY", 2, 2, -1, 1, 10.5),
])
pocket18 = body.newObject("PartDesign::Pocket", "Pocket017")
pocket18.Profile = sketch19
pocket18.Length = 0.7
pocket18.Reversed = True

sketch20 = body.newObject("Sketcher::SketchObject", "Sketch019")
sketch20.AttachmentSupport = (doc.getObject("XY_Plane"), [""])
sketch20.MapMode = "FlatFace"
sketch20.AttachmentOffset = App.Placement(App.Vector(0, 0, -1.5), App.Rotation())
sketch20.addGeometry([
    Part.LineSegment(App.Vector(-2, -12, 0), App.Vector(-2, -11.2, 0)),
    Part.LineSegment(App.Vector(-2, -11.2, 0), App.Vector(2, -11.2, 0)),
    Part.LineSegment(App.Vector(2, -11.2, 0), App.Vector(2, -12, 0)),
    Part.LineSegment(App.Vector(2, -12, 0), App.Vector(-2, -12, 0)),
], False)
sketch20.addConstraint([
    Sketcher.Constraint("Coincident", 0, 2, 1, 1),
    Sketcher.Constraint("Coincident", 1, 2, 2, 1),
    Sketcher.Constraint("Coincident", 2, 2, 3, 1),
    Sketcher.Constraint("Coincident", 3, 2, 0, 1),
    Sketcher.Constraint("Vertical", 0),
    Sketcher.Constraint("Horizontal", 1),
    Sketcher.Constraint("Vertical", 2),
    Sketcher.Constraint("Horizontal", 3),
    Sketcher.Constraint("DistanceX", 1, 1, 1, 2, 4.0),
    Sketcher.Constraint("DistanceX", 0, 2, -1, 1, 2.0),
    Sketcher.Constraint("DistanceY", 2, 2, -1, 1, 12.0),
    Sketcher.Constraint("DistanceY", 0, 1, 0, 2, 0.75),
])
pocket19 = body.newObject("PartDesign::Pocket", "Pocket018")
pocket19.Profile = sketch20
pocket19.Length = 0.7
pocket19.Reversed = True

sketch21 = body.newObject("Sketcher::SketchObject", "Sketch020")
sketch21.AttachmentSupport = (doc.getObject("XY_Plane"), [""])
sketch21.MapMode = "FlatFace"
sketch21.AttachmentOffset = App.Placement(App.Vector(0, 0, -1.5), App.Rotation())
sketch21.addGeometry([
    Part.LineSegment(App.Vector(-2, -13.5, 0), App.Vector(-2, -12.8, 0)),
    Part.LineSegment(App.Vector(-2, -12.8, 0), App.Vector(2, -12.8, 0)),
    Part.LineSegment(App.Vector(2, -12.8, 0), App.Vector(2, -13.5, 0)),
    Part.LineSegment(App.Vector(2, -13.5, 0), App.Vector(-2, -13.5, 0)),
], False)
sketch21.addConstraint([
    Sketcher.Constraint("Coincident", 0, 2, 1, 1),
    Sketcher.Constraint("Coincident", 1, 2, 2, 1),
    Sketcher.Constraint("Coincident", 2, 2, 3, 1),
    Sketcher.Constraint("Coincident", 3, 2, 0, 1),
    Sketcher.Constraint("Vertical", 0),
    Sketcher.Constraint("Horizontal", 1),
    Sketcher.Constraint("Vertical", 2),
    Sketcher.Constraint("Horizontal", 3),
    Sketcher.Constraint("DistanceX", 1, 1, 1, 2, 4.0),
    Sketcher.Constraint("DistanceX", 0, 2, -1, 1, 2.0),
    Sketcher.Constraint("DistanceY", 0, 1, 0, 2, 0.75),
    Sketcher.Constraint("DistanceY", 2, 2, -1, 1, 13.5),
])
pocket20 = body.newObject("PartDesign::Pocket", "Pocket019")
pocket20.Profile = sketch21
pocket20.Length = 0.7
pocket20.Reversed = True

doc.recompute()
